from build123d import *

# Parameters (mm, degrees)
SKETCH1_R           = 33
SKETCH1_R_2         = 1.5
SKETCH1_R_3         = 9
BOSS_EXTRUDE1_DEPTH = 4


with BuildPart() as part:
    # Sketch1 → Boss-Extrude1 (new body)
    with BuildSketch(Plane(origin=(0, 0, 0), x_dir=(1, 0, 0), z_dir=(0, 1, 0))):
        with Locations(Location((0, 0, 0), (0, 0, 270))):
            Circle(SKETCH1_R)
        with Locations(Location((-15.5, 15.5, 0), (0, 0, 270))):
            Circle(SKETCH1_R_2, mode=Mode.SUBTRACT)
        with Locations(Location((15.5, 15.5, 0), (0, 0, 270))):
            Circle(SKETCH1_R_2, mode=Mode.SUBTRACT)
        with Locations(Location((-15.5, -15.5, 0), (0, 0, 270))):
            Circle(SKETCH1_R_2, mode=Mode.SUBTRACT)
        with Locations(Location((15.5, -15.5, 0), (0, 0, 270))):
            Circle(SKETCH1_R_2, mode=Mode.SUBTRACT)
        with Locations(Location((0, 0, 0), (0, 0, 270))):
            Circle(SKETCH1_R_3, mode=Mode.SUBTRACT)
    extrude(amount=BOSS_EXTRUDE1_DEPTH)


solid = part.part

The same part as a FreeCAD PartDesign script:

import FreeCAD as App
import Part
import Sketcher
from FreeCAD import Vector

doc = App.newDocument("Part")
body = doc.addObject("PartDesign::Body", "Body")

sketch1 = body.newObject("Sketcher::SketchObject", "Sketch")
sketch1.AttachmentSupport = (doc.getObject("XZ_Plane"), [""])
sketch1.MapMode = "FlatFace"
sketch1.addGeometry(Part.Circle(Vector(0, 0, 0), Vector(0, 0, 1), 33), False)
sketch1.addGeometry(Part.Circle(Vector(-15.5, -15.5, 0), Vector(0, 0, 1), 1.5), False)
sketch1.addGeometry(Part.Circle(Vector(-15.5, 15.5, 0), Vector(0, 0, 1), 1.5), False)
sketch1.addGeometry(Part.Circle(Vector(0, 0, 0), Vector(0, 0, 1), 9), False)
sketch1.addGeometry(Part.Circle(Vector(15.5, -15.5, 0), Vector(0, 0, 1), 1.5), False)
sketch1.addGeometry(Part.Circle(Vector(15.5, 15.5, 0), Vector(0, 0, 1), 1.5), False)
sketch1.addConstraint(Sketcher.Constraint("Coincident", 0, 3, -1, 1))
sketch1.addConstraint(Sketcher.Constraint("Coincident", 3, 3, -1, 1))
sketch1.addConstraint(Sketcher.Constraint("Equal", 1, 2))
sketch1.addConstraint(Sketcher.Constraint("Equal", 2, 4))
sketch1.addConstraint(Sketcher.Constraint("Equal", 4, 5))
sketch1.addConstraint(Sketcher.Constraint("Symmetric", 2, 3, 4, 3, -1, 1))
sketch1.addConstraint(Sketcher.Constraint("Symmetric", 1, 3, 5, 3, -1, 1))
sketch1.addConstraint(Sketcher.Constraint("Symmetric", 1, 3, 4, 3, -2))
sketch1.addConstraint(Sketcher.Constraint("Diameter", 0, 66.0))
sketch1.addConstraint(Sketcher.Constraint("Diameter", 1, 3.0))
sketch1.addConstraint(Sketcher.Constraint("Diameter", 3, 18.0))
sketch1.addConstraint(Sketcher.Constraint("DistanceY", 1, 3, 2, 3, 31.0))
sketch1.addConstraint(Sketcher.Constraint("DistanceX", 1, 3, 4, 3, 31.0))
pad1 = body.newObject("PartDesign::Pad", "Pad")
pad1.Profile = sketch1
pad1.Length = 4
pad1.Reversed = True

doc.recompute()
